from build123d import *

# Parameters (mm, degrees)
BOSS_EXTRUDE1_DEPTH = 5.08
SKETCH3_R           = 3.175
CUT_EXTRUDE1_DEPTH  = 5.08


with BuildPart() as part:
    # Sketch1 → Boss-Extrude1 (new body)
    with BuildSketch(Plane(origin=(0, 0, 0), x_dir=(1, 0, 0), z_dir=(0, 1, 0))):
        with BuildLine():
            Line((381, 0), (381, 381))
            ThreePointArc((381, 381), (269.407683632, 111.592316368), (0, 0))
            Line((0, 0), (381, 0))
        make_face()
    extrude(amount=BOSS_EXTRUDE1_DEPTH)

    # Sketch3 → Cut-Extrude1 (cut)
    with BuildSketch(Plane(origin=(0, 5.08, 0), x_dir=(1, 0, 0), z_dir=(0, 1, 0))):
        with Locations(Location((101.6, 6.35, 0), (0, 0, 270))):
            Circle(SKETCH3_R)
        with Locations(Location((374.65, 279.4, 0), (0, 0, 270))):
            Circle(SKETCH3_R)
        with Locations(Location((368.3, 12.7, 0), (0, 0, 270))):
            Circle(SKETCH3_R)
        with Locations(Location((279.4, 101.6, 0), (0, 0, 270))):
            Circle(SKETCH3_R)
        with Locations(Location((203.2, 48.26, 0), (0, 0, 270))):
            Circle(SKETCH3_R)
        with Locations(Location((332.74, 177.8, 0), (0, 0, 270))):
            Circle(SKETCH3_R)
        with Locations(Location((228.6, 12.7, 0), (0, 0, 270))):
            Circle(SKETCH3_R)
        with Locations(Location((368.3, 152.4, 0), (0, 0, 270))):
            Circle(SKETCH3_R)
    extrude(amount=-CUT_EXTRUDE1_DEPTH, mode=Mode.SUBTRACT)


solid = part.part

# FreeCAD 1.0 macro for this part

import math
import FreeCAD as App
import Part
import Sketcher
Q = App.Units.Quantity

doc = App.newDocument("Part")
body = doc.addObject("PartDesign::Body", "Body")

# Sketch on XZ plane
sketch1 = body.newObject("Sketcher::SketchObject", "Sketch")
sketch1.AttachmentSupport = (doc.getObject("XZ_Plane"), [""])
sketch1.MapMode = "FlatFace"
sketch1.addGeometry(Part.LineSegment(App.Vector(381, 0, 0), App.Vector(381, -381, 0)), False)
sketch1.addGeometry(Part.ArcOfCircle(Part.Circle(App.Vector(0, -381, 0), App.Vector(0, 0, 1), 381), math.radians(0), math.radians(90)), False)
sketch1.addGeometry(Part.LineSegment(App.Vector(0, 0, 0), App.Vector(381, 0, 0)), False)
sketch1.addConstraint(Sketcher.Constraint("Tangent", 0, 2, 1, 1))
sketch1.addConstraint(Sketcher.Constraint("Tangent", 1, 2, 2, 1))
sketch1.addConstraint(Sketcher.Constraint("Coincident", 2, 2, 0, 1))
sketch1.addConstraint(Sketcher.Constraint("Vertical", 0))
sketch1.addConstraint(Sketcher.Constraint("Horizontal", 2))
sketch1.addConstraint(Sketcher.Constraint("PointOnObject", 1, 3, -2))
sketch1.addConstraint(Sketcher.Constraint("PointOnObject", 2, 2, -1))
sketch1.addConstraint(Sketcher.Constraint("Radius", 1, Q("15 in")))
pad1 = body.newObject("PartDesign::Pad", "Pad")
pad1.Profile = sketch1
pad1.Length = Q("0.2 in")
pad1.Reversed = True

# Sketch on XZ plane
sketch2 = body.newObject("Sketcher::SketchObject", "Sketch001")
sketch2.AttachmentSupport = (doc.getObject("XZ_Plane"), [""])
sketch2.MapMode = "FlatFace"
sketch2.AttachmentOffset = App.Placement(App.Vector(0, 0, -0.2 * 25.4), App.Rotation())
sketch2.addGeometry(Part.Circle(App.Vector(101.6, -6.35, 0), App.Vector(0, 0, 1), 3.175), False)
sketch2.addGeometry(Part.Circle(App.Vector(374.65, -279.4, 0), App.Vector(0, 0, 1), 3.175), False)
sketch2.addGeometry(Part.Circle(App.Vector(368.3, -12.7, 0), App.Vector(0, 0, 1), 3.175), False)
sketch2.addGeometry(Part.Circle(App.Vector(279.4, -101.6, 0), App.Vector(0, 0, 1), 3.175), False)
sketch2.addGeometry(Part.Circle(App.Vector(203.2, -48.26, 0), App.Vector(0, 0, 1), 3.175), False)
sketch2.addGeometry(Part.Circle(App.Vector(332.74, -177.8, 0), App.Vector(0, 0, 1), 3.175), False)
sketch2.addGeometry(Part.Circle(App.Vector(228.6, -12.7, 0), App.Vector(0, 0, 1), 3.175), False)
sketch2.addGeometry(Part.Circle(App.Vector(368.3, -152.4, 0), App.Vector(0, 0, 1), 3.175), False)
sketch2.addConstraint(Sketcher.Constraint("Equal", 0, 1))
sketch2.addConstraint(Sketcher.Constraint("Equal", 1, 2))
sketch2.addConstraint(Sketcher.Constraint("Equal", 2, 3))
sketch2.addConstraint(Sketcher.Constraint("Equal", 3, 4))
sketch2.addConstraint(Sketcher.Constraint("Equal", 4, 5))
sketch2.addConstraint(Sketcher.Constraint("Equal", 5, 6))
sketch2.addConstraint(Sketcher.Constraint("Equal", 6, 7))
sketch2.addConstraint(Sketcher.Constraint("Horizontal", 2, 3, 6, 3))
sketch2.addConstraint(Sketcher.Constraint("Vertical", 2, 3, 7, 3))
sketch2.addConstraint(Sketcher.Constraint("Diameter", 0, Q("0.25 in")))
sketch2.addConstraint(Sketcher.Constraint("DistanceX", -1, 1, 0, 3, Q("4 in")))
sketch2.addConstraint(Sketcher.Constraint("DistanceY", 1, 3, -1, 1, Q("11 in")))
sketch2.addConstraint(Sketcher.Constraint("DistanceX", -1, 1, 3, 3, Q("11 in")))
sketch2.addConstraint(Sketcher.Constraint("DistanceY", 3, 3, -1, 1, Q("4 in")))
sketch2.addConstraint(Sketcher.Constraint("DistanceX", -1, 1, 4, 3, Q("8 in")))
sketch2.addConstraint(Sketcher.Constraint("DistanceY", 5, 3, -1, 1, Q("7 in")))
sketch2.addConstraint(Sketcher.Constraint("DistanceX", -1, 1, 6, 3, Q("9 in")))
sketch2.addConstraint(Sketcher.Constraint("DistanceY", 7, 3, -1, 1, Q("6 in")))
sketch2.addConstraint(Sketcher.Constraint("DistanceX", -1, 1, 2, 3, Q("14.5 in")))
sketch2.addConstraint(Sketcher.Constraint("DistanceY", 2, 3, -1, 1, Q("0.5 in")))
sketch2.addConstraint(Sketcher.Constraint("DistanceY", 4, 3, -1, 1, Q("1.9 in")))
sketch2.addConstraint(Sketcher.Constraint("DistanceX", -1, 1, 5, 3, Q("13.1 in")))
sketch2.addConstraint(Sketcher.Constraint("DistanceY", 0, 3, -1, 1, Q("0.25 in")))
sketch2.addConstraint(Sketcher.Constraint("DistanceX", -1, 1, 1, 3, Q("14.75 in")))
pocket1 = body.newObject("PartDesign::Pocket", "Pocket")
pocket1.Profile = sketch2
pocket1.Length = Q("0.2 in")
pocket1.Reversed = True

doc.recompute()
